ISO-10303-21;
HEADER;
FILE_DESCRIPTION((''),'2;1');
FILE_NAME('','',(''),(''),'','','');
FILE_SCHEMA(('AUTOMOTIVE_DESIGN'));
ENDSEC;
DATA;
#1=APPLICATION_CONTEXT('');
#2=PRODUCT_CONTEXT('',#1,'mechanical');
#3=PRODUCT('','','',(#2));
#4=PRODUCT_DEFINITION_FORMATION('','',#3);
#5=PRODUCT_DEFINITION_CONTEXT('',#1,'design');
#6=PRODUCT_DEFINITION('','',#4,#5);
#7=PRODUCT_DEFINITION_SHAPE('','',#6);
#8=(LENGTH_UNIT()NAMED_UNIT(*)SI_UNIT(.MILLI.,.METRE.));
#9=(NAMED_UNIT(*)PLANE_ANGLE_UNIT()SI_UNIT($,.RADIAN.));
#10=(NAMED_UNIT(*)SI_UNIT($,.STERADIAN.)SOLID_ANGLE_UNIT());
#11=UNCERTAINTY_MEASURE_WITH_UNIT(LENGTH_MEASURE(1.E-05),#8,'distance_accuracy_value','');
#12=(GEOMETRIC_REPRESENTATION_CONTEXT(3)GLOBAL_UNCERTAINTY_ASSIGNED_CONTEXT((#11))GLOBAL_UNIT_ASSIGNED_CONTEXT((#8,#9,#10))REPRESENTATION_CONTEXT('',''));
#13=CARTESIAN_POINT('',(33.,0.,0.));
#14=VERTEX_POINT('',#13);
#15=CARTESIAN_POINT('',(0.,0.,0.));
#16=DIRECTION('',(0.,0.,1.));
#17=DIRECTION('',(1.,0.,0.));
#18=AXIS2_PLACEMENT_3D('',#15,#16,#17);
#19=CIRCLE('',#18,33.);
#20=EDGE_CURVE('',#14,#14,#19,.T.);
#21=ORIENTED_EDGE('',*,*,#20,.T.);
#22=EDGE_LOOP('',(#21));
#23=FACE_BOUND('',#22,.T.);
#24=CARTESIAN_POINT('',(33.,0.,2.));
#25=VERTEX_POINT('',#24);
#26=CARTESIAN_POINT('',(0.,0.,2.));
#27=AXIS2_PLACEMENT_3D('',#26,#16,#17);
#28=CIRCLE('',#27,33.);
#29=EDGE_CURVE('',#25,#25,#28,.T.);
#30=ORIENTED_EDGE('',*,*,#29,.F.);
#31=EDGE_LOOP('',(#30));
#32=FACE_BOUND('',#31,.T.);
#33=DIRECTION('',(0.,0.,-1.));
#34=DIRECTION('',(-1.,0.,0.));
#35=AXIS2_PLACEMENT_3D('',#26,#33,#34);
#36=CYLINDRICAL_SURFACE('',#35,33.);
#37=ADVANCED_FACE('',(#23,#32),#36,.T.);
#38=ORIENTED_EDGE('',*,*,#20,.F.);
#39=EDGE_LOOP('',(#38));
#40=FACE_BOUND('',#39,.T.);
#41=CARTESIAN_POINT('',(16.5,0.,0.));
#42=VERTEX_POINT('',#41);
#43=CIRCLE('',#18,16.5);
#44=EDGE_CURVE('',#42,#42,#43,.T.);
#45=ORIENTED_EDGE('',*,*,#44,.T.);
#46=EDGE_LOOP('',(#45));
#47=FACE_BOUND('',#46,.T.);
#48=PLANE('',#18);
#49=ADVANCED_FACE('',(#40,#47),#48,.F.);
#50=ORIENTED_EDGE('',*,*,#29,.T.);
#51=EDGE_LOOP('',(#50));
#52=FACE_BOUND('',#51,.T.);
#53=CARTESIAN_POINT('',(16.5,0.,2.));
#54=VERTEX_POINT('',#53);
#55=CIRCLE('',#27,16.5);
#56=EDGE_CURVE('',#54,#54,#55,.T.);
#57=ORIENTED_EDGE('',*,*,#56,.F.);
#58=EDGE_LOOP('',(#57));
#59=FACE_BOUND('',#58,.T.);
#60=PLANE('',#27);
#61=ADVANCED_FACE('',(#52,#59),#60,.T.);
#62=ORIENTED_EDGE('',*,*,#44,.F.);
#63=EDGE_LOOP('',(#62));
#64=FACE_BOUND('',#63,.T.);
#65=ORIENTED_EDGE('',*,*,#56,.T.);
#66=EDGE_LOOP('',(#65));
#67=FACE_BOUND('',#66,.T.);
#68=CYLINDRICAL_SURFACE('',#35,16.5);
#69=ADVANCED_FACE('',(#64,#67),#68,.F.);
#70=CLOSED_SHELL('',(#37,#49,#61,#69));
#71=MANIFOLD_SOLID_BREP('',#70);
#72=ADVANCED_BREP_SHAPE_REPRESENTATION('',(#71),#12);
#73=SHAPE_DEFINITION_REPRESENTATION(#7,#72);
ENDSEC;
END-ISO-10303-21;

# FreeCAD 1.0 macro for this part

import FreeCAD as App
import Part
import Sketcher

doc = App.newDocument("Part")
body = doc.addObject("PartDesign::Body", "Body")

# Sketch on XY plane
sketch1 = doc.addObject("Sketcher::SketchObject", "Sketch")
body.addObject(sketch1)
sketch1.AttachmentSupport = (doc.XY_Plane, [""])
sketch1.MapMode = "FlatFace"
sketch1.addGeometry([
    Part.Circle(App.Vector(0, 0, 0), App.Vector(0, 0, 1), 33),
    Part.Circle(App.Vector(0, 0, 0), App.Vector(0, 0, 1), 16),
], False)
sketch1.addConstraint([
    Sketcher.Constraint("Coincident", 0, 3, -1, 1),
    Sketcher.Constraint("Coincident", 1, 3, -1, 1),
    Sketcher.Constraint("Diameter", 0, 66.0),
    Sketcher.Constraint("Diameter", 1, 33.0),
])
pad1 = doc.addObject("PartDesign::Pad", "Pad")
body.addObject(pad1)
pad1.Profile = sketch1
pad1.Length = 2

doc.recompute()
